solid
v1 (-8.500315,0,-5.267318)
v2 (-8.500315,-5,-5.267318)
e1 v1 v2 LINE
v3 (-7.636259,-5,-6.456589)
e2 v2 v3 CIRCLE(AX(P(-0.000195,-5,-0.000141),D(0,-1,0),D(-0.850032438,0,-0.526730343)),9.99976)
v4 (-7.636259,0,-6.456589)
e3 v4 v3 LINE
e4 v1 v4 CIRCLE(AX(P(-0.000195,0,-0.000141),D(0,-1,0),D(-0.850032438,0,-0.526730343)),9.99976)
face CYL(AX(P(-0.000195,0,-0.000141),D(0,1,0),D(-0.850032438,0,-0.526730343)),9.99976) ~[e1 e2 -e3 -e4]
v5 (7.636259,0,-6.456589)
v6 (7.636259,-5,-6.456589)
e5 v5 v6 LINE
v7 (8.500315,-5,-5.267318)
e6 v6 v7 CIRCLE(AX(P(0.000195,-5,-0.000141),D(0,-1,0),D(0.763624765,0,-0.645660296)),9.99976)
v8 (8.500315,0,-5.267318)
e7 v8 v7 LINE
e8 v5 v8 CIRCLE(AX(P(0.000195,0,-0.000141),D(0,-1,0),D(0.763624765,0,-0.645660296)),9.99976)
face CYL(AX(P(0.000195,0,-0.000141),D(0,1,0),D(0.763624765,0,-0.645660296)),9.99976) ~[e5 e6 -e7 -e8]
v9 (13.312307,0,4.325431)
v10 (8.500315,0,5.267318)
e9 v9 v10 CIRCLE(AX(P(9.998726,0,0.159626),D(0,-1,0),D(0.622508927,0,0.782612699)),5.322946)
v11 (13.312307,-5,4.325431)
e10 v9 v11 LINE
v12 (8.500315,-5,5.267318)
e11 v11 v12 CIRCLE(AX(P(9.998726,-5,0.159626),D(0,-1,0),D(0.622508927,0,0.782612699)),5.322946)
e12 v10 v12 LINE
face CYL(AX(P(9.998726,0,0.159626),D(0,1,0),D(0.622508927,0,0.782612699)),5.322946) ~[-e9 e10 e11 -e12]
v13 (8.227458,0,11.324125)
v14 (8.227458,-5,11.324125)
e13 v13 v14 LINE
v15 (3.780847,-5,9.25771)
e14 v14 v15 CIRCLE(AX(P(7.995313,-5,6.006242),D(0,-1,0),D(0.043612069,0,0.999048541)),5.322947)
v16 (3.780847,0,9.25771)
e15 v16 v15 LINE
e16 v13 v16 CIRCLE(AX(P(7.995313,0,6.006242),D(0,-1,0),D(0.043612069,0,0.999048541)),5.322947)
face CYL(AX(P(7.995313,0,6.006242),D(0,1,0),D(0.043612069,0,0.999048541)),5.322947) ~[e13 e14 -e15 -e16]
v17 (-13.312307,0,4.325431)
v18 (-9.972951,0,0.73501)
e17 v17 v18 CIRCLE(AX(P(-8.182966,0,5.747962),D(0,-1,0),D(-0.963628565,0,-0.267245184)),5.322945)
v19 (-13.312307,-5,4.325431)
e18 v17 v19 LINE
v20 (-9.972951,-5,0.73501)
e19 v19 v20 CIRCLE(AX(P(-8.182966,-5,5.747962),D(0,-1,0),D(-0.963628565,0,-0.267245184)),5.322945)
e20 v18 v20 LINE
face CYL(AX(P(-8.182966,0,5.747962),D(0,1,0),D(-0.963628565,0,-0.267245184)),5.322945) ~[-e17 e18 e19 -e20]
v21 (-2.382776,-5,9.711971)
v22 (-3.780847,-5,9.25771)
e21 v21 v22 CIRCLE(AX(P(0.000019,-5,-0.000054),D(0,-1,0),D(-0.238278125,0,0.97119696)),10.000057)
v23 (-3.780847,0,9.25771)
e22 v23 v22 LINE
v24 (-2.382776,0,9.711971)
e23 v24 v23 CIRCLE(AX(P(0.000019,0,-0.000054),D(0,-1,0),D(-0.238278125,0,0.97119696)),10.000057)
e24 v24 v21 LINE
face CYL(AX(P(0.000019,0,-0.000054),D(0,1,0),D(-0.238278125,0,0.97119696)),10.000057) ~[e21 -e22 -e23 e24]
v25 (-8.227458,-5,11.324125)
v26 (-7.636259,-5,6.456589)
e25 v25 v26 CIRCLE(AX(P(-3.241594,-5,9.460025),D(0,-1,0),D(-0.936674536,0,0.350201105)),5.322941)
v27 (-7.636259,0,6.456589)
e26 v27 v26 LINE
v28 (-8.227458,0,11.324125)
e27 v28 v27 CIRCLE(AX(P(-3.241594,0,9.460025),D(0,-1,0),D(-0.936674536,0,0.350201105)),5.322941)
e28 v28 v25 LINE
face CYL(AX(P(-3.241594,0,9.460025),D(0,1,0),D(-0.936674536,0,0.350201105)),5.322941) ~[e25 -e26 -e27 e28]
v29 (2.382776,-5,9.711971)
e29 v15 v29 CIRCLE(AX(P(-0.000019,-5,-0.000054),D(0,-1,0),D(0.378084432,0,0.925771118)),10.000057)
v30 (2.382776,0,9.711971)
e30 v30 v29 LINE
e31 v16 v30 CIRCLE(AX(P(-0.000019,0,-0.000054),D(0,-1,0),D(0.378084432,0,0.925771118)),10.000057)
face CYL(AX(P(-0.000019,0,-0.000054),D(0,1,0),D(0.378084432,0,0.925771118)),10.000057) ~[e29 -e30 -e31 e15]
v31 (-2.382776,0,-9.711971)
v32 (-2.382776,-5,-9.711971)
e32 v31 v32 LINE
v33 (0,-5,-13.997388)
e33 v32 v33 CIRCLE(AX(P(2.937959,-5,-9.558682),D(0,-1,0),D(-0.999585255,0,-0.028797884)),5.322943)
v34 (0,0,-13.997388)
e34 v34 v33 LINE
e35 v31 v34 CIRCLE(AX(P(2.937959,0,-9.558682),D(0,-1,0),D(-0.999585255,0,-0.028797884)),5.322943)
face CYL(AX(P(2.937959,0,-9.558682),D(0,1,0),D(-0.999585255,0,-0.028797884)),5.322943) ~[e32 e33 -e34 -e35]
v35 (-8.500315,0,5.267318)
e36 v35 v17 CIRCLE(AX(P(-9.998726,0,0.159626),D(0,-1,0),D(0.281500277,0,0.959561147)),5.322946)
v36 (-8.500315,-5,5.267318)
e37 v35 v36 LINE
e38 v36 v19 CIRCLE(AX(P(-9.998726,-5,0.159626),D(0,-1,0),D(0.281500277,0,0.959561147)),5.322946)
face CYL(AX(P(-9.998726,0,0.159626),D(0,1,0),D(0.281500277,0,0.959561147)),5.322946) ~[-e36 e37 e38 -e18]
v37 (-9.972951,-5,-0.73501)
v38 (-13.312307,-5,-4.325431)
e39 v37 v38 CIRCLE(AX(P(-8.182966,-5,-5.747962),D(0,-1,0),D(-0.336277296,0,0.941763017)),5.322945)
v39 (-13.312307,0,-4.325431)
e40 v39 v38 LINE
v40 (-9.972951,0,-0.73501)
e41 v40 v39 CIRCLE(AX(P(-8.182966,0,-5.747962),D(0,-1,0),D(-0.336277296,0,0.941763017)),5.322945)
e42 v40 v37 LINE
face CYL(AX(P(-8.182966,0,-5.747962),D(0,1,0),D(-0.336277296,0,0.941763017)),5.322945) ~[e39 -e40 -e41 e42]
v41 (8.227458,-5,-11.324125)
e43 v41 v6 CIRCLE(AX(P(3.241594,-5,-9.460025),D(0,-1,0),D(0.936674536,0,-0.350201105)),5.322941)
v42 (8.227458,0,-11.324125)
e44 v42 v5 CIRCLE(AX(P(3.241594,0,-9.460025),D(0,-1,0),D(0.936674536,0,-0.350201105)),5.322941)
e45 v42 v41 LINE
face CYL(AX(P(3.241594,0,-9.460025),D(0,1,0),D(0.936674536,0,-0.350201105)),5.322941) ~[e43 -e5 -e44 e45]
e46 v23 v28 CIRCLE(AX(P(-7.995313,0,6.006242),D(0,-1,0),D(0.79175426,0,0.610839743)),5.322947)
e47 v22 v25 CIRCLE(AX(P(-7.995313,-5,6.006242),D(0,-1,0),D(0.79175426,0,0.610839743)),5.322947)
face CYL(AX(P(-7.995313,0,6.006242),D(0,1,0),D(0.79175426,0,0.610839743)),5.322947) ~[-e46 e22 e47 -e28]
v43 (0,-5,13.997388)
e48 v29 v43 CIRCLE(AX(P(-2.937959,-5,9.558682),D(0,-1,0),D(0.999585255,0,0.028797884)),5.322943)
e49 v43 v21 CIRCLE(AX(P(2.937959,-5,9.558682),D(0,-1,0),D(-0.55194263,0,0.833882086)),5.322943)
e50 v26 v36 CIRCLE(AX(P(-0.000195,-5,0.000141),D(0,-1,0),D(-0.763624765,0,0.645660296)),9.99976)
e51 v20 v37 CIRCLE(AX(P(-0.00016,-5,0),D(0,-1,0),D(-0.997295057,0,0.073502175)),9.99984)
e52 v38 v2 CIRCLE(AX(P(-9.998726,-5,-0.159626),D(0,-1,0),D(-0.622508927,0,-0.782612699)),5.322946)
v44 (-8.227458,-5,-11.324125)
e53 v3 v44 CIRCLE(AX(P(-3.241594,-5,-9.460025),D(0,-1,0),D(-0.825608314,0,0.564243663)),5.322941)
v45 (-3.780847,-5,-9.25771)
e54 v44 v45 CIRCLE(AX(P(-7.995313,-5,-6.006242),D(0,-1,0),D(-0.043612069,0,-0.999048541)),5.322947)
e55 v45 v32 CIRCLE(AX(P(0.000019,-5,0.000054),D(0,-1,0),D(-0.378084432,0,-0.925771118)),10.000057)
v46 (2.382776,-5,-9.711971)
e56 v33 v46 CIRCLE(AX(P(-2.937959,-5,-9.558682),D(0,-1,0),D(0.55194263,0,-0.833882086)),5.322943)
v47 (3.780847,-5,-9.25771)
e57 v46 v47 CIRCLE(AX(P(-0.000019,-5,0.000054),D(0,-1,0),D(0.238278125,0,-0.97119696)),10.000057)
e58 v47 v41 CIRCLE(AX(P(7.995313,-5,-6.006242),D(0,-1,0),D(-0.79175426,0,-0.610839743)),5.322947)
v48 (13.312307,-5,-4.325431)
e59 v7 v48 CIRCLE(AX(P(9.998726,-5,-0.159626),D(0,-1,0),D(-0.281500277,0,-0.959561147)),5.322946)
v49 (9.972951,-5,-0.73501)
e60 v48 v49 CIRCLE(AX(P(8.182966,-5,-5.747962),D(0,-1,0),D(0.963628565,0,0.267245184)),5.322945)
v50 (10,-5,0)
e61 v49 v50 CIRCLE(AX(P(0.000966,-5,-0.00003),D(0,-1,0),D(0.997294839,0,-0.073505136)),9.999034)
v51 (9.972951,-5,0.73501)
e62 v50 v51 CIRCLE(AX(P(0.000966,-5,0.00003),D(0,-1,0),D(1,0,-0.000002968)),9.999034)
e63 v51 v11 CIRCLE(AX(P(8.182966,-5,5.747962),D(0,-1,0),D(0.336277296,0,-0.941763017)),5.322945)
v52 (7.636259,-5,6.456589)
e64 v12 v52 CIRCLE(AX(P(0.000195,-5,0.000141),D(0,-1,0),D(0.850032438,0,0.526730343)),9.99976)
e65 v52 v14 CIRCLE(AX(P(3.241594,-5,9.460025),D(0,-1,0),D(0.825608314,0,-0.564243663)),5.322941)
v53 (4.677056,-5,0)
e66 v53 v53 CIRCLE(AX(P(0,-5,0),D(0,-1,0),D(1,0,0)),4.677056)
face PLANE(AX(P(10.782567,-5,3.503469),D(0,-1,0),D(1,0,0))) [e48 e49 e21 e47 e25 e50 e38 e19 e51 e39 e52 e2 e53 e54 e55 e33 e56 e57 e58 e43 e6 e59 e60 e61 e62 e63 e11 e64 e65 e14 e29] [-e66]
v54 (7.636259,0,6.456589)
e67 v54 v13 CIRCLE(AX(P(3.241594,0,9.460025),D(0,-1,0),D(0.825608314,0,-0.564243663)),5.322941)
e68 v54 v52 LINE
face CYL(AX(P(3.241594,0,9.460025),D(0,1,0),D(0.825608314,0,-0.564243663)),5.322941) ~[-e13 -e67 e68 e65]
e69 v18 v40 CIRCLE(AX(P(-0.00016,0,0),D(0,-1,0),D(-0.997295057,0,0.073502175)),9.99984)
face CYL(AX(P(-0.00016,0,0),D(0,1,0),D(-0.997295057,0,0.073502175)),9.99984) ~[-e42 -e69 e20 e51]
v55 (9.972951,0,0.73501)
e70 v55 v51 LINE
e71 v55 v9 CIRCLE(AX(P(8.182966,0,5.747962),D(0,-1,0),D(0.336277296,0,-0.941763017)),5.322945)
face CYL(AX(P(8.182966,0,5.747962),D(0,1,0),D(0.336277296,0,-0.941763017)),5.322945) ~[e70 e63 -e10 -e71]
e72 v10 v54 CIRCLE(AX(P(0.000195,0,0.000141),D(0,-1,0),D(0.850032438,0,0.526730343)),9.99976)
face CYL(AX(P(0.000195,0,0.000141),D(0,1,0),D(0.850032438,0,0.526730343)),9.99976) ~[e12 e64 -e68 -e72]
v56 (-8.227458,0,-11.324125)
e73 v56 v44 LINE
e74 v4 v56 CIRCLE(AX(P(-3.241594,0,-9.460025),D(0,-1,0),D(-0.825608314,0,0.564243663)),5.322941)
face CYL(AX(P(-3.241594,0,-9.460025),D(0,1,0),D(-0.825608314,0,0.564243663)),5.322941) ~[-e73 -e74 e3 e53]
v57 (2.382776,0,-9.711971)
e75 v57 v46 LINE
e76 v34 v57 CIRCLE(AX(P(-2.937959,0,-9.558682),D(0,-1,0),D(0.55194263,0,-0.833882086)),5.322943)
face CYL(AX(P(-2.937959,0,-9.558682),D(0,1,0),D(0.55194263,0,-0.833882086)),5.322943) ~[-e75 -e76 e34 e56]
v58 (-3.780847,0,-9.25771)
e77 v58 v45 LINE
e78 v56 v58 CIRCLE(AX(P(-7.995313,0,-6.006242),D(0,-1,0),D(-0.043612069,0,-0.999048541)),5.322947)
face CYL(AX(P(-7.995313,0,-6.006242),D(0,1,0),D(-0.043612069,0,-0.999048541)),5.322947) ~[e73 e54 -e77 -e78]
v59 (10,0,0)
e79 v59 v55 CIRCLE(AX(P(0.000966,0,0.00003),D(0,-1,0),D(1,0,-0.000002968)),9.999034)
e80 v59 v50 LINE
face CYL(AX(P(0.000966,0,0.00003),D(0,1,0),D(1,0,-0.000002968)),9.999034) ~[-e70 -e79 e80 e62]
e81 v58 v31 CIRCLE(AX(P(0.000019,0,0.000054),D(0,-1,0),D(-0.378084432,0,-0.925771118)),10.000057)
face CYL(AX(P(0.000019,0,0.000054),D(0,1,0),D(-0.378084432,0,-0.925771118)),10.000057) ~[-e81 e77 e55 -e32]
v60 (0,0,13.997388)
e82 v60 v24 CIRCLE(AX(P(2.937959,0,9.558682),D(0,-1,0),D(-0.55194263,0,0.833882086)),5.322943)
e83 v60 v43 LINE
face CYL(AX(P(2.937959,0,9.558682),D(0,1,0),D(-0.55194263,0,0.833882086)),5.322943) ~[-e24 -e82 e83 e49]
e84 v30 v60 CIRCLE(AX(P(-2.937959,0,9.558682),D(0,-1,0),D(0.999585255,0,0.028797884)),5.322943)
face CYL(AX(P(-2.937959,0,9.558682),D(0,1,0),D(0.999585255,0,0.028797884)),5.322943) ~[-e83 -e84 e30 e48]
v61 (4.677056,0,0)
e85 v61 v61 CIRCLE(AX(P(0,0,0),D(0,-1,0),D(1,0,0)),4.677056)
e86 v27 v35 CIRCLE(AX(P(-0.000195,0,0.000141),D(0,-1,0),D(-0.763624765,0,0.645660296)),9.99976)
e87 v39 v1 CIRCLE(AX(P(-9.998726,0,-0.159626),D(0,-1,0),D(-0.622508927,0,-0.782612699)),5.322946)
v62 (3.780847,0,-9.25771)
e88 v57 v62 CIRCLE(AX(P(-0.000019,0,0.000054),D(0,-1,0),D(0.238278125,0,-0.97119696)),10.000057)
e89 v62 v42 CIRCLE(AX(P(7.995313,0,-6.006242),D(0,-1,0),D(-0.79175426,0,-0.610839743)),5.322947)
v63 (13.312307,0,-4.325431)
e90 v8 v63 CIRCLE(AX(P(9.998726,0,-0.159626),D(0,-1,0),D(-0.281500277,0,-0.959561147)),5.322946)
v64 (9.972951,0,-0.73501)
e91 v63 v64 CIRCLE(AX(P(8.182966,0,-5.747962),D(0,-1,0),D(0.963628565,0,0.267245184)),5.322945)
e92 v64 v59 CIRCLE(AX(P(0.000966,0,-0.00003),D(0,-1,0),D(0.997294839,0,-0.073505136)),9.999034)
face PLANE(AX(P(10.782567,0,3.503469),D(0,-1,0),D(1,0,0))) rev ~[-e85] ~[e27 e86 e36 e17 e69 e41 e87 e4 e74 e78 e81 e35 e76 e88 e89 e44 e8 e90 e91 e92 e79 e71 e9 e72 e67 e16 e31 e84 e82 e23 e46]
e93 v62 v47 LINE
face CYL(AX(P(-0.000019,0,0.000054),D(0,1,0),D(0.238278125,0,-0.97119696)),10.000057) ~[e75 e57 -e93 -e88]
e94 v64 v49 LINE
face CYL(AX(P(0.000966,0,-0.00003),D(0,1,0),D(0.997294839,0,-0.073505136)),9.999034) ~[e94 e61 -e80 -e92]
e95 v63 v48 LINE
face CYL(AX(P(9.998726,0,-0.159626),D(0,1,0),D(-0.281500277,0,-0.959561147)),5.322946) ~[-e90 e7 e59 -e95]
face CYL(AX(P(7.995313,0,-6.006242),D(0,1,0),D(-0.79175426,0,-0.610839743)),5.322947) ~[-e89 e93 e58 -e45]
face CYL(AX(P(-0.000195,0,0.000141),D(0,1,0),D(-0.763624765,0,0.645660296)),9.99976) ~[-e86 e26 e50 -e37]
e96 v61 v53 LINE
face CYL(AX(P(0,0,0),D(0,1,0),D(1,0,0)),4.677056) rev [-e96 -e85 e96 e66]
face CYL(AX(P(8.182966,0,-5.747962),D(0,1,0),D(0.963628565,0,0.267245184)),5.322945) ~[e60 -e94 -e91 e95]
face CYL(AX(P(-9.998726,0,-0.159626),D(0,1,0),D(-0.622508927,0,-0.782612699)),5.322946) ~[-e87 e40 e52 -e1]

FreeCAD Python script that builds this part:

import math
import FreeCAD as App
import Part
import Sketcher
from FreeCAD import Vector

doc = App.newDocument("Part")
params = doc.addObject("Spreadsheet::Sheet", "Params")
for row, (alias, value) in enumerate([
    ("pad1_length", "5 mm"),
], start=1):
    params.set(f"A{row}", alias)
    params.set(f"B{row}", "=" + value)
    params.setAlias(f"B{row}", alias)

body = doc.addObject("PartDesign::Body", "Body")

sketch1 = body.newObject("Sketcher::SketchObject", "Sketch")
sketch1.AttachmentSupport = (doc.getObject("XZ_Plane"), [""])
sketch1.MapMode = "FlatFace"
sketch1.addGeometry([
    Part.ArcOfCircle(Part.Circle(Vector(8.182966, 5.747962, 0), Vector(0, 0, 1), 5.322945), math.radians(-70.349772), math.radians(-15.500405)),
    Part.ArcOfCircle(Part.Circle(Vector(9.998726, 0.159626, 0), Vector(0, 0, 1), 5.322946), math.radians(51.500418), math.radians(106.349766)),
    Part.ArcOfCircle(Part.Circle(Vector(0.000195, 0.000141, 0), Vector(0, 0, 1), 9.99976), math.radians(31.784802), math.radians(40.2152)),
    Part.ArcOfCircle(Part.Circle(Vector(3.241594, 9.460025, 0), Vector(0, 0, 1), 5.322941), math.radians(-34.349786), math.radians(20.499616)),
    Part.ArcOfCircle(Part.Circle(Vector(7.995313, 6.006242, 0), Vector(0, 0, 1), 5.322947), math.radians(87.50042), math.radians(142.349753)),
    Part.ArcOfCircle(Part.Circle(Vector(-0.000019, -0.000054, 0), Vector(0, 0, 1), 10.000057), math.radians(67.784922), math.radians(76.215064)),
    Part.ArcOfCircle(Part.Circle(Vector(-2.937959, 9.558682, 0), Vector(0, 0, 1), 5.322943), math.radians(1.650225), math.radians(56.499612)),
    Part.ArcOfCircle(Part.Circle(Vector(2.937959, 9.558682, 0), Vector(0, 0, 1), 5.322943), math.radians(123.500388), math.radians(178.349775)),
    Part.ArcOfCircle(Part.Circle(Vector(0.000019, -0.000054, 0), Vector(0, 0, 1), 10.000057), math.radians(103.784936), math.radians(112.215078)),
    Part.ArcOfCircle(Part.Circle(Vector(-7.995313, 6.006242, 0), Vector(0, 0, 1), 5.322947), math.radians(37.650247), math.radians(92.49958)),
    Part.ArcOfCircle(Part.Circle(Vector(-3.241594, 9.460025, 0), Vector(0, 0, 1), 5.322941), math.radians(159.500384), math.radians(214.349786)),
    Part.ArcOfCircle(Part.Circle(Vector(-0.000195, 0.000141, 0), Vector(0, 0, 1), 9.99976), math.radians(139.7848), math.radians(148.215198)),
    Part.ArcOfCircle(Part.Circle(Vector(-9.998726, 0.159626, 0), Vector(0, 0, 1), 5.322946), math.radians(73.650234), math.radians(128.499582)),
    Part.ArcOfCircle(Part.Circle(Vector(-8.182966, 5.747962, 0), Vector(0, 0, 1), 5.322945), math.radians(-164.499595), math.radians(-109.650228)),
    Part.ArcOfCircle(Part.Circle(Vector(-0.00016, 0, 0), Vector(0, 0, 1), 9.99984), math.radians(175.784834), math.radians(184.215166)),
    Part.ArcOfCircle(Part.Circle(Vector(-8.182966, -5.747962, 0), Vector(0, 0, 1), 5.322945), math.radians(109.650228), math.radians(164.499595)),
    Part.ArcOfCircle(Part.Circle(Vector(-9.998726, -0.159626, 0), Vector(0, 0, 1), 5.322946), math.radians(-128.499582), math.radians(-73.650234)),
    Part.ArcOfCircle(Part.Circle(Vector(-0.000195, -0.000141, 0), Vector(0, 0, 1), 9.99976), math.radians(-148.215198), math.radians(-139.7848)),
    Part.ArcOfCircle(Part.Circle(Vector(-3.241594, -9.460025, 0), Vector(0, 0, 1), 5.322941), math.radians(145.650214), math.radians(200.499616)),
    Part.ArcOfCircle(Part.Circle(Vector(-7.995313, -6.006242, 0), Vector(0, 0, 1), 5.322947), math.radians(-92.49958), math.radians(-37.650247)),
    Part.ArcOfCircle(Part.Circle(Vector(0.000019, 0.000054, 0), Vector(0, 0, 1), 10.000057), math.radians(-112.215078), math.radians(-103.784936)),
    Part.ArcOfCircle(Part.Circle(Vector(2.937959, -9.558682, 0), Vector(0, 0, 1), 5.322943), math.radians(-178.349775), math.radians(-123.500388)),
    Part.ArcOfCircle(Part.Circle(Vector(-2.937959, -9.558682, 0), Vector(0, 0, 1), 5.322943), math.radians(-56.499612), math.radians(-1.650225)),
    Part.ArcOfCircle(Part.Circle(Vector(-0.000019, 0.000054, 0), Vector(0, 0, 1), 10.000057), math.radians(-76.215064), math.radians(-67.784922)),
    Part.ArcOfCircle(Part.Circle(Vector(7.995313, -6.006242, 0), Vector(0, 0, 1), 5.322947), math.radians(-142.349753), math.radians(-87.50042)),
    Part.ArcOfCircle(Part.Circle(Vector(3.241594, -9.460025, 0), Vector(0, 0, 1), 5.322941), math.radians(-20.499616), math.radians(34.349786)),
    Part.ArcOfCircle(Part.Circle(Vector(0.000195, -0.000141, 0), Vector(0, 0, 1), 9.99976), math.radians(-40.2152), math.radians(-31.784802)),
    Part.ArcOfCircle(Part.Circle(Vector(9.998726, -0.159626, 0), Vector(0, 0, 1), 5.322946), math.radians(-106.349766), math.radians(-51.500418)),
    Part.ArcOfCircle(Part.Circle(Vector(8.182966, -5.747962, 0), Vector(0, 0, 1), 5.322945), math.radians(15.500405), math.radians(70.349772)),
    Part.ArcOfCircle(Part.Circle(Vector(0.000966, -0.00003, 0), Vector(0, 0, 1), 9.999034), math.radians(-4.215336), math.radians(0.00017)),
    Part.ArcOfCircle(Part.Circle(Vector(0.000966, 0.00003, 0), Vector(0, 0, 1), 9.999034), math.radians(-0.00017), math.radians(4.215336)),
    Part.Circle(Vector(0, 0, 0), Vector(0, 0, 1), 4.677056),
], False)
sketch1.addConstraint([
    Sketcher.Constraint("Coincident", 0, 2, 1, 1),
    Sketcher.Constraint("Coincident", 1, 2, 2, 1),
    Sketcher.Constraint("Coincident", 2, 2, 3, 1),
    Sketcher.Constraint("Coincident", 3, 2, 4, 1),
    Sketcher.Constraint("Coincident", 4, 2, 5, 1),
    Sketcher.Constraint("Coincident", 5, 2, 6, 1),
    Sketcher.Constraint("Coincident", 6, 2, 7, 1),
    Sketcher.Constraint("Coincident", 7, 2, 8, 1),
    Sketcher.Constraint("Coincident", 8, 2, 9, 1),
    Sketcher.Constraint("Coincident", 9, 2, 10, 1),
    Sketcher.Constraint("Coincident", 10, 2, 11, 1),
    Sketcher.Constraint("Coincident", 11, 2, 12, 1),
    Sketcher.Constraint("Coincident", 12, 2, 13, 1),
    Sketcher.Constraint("Coincident", 13, 2, 14, 1),
    Sketcher.Constraint("Coincident", 14, 2, 15, 1),
    Sketcher.Constraint("Coincident", 15, 2, 16, 1),
    Sketcher.Constraint("Coincident", 16, 2, 17, 1),
    Sketcher.Constraint("Coincident", 17, 2, 18, 1),
    Sketcher.Constraint("Coincident", 18, 2, 19, 1),
    Sketcher.Constraint("Coincident", 19, 2, 20, 1),
    Sketcher.Constraint("Coincident", 20, 2, 21, 1),
    Sketcher.Constraint("Coincident", 21, 2, 22, 1),
    Sketcher.Constraint("Coincident", 22, 2, 23, 1),
    Sketcher.Constraint("Coincident", 23, 2, 24, 1),
    Sketcher.Constraint("Coincident", 24, 2, 25, 1),
    Sketcher.Constraint("Coincident", 25, 2, 26, 1),
    Sketcher.Constraint("Coincident", 26, 2, 27, 1),
    Sketcher.Constraint("Coincident", 27, 2, 28, 1),
    Sketcher.Constraint("Coincident", 28, 2, 29, 1),
    Sketcher.Constraint("Coincident", 29, 2, 30, 1),
    Sketcher.Constraint("Coincident", 30, 2, 0, 1),
    Sketcher.Constraint("Coincident", 31, 3, -1, 1),
    Sketcher.Constraint("Equal", 0, 1),
    Sketcher.Constraint("Equal", 1, 4),
    Sketcher.Constraint("Equal", 3, 6),
    Sketcher.Constraint("Equal", 6, 7),
    Sketcher.Constraint("Equal", 5, 8),
    Sketcher.Constraint("Equal", 4, 9),
    Sketcher.Constraint("Equal", 7, 10),
    Sketcher.Constraint("Equal", 2, 11),
    Sketcher.Constraint("Equal", 9, 12),
    Sketcher.Constraint("Equal", 12, 13),
    Sketcher.Constraint("Equal", 13, 15),
    Sketcher.Constraint("Equal", 15, 16),
    Sketcher.Constraint("Equal", 11, 17),
    Sketcher.Constraint("Equal", 10, 18),
    Sketcher.Constraint("Equal", 16, 19),
    Sketcher.Constraint("Equal", 8, 20),
    Sketcher.Constraint("Equal", 18, 21),
    Sketcher.Constraint("Equal", 21, 22),
    Sketcher.Constraint("Equal", 20, 23),
    Sketcher.Constraint("Equal", 19, 24),
    Sketcher.Constraint("Equal", 22, 25),
    Sketcher.Constraint("Equal", 17, 26),
    Sketcher.Constraint("Equal", 24, 27),
    Sketcher.Constraint("Equal", 27, 28),
    Sketcher.Constraint("Equal", 29, 30),
    Sketcher.Constraint("Symmetric", 0, 3, 15, 3, -1, 1),
    Sketcher.Constraint("Symmetric", 1, 3, 16, 3, -1, 1),
    Sketcher.Constraint("Symmetric", 2, 3, 17, 3, -1, 1),
    Sketcher.Constraint("Symmetric", 3, 3, 18, 3, -1, 1),
    Sketcher.Constraint("Symmetric", 4, 3, 19, 3, -1, 1),
    Sketcher.Constraint("Symmetric", 5, 3, 20, 3, -1, 1),
    Sketcher.Constraint("Symmetric", 6, 3, 21, 3, -1, 1),
    Sketcher.Constraint("Symmetric", 7, 3, 22, 3, -1, 1),
    Sketcher.Constraint("Symmetric", 8, 3, 23, 3, -1, 1),
    Sketcher.Constraint("Symmetric", 9, 3, 24, 3, -1, 1),
    Sketcher.Constraint("Symmetric", 10, 3, 25, 3, -1, 1),
    Sketcher.Constraint("Symmetric", 11, 3, 26, 3, -1, 1),
    Sketcher.Constraint("Symmetric", 12, 3, 27, 3, -1, 1),
    Sketcher.Constraint("Symmetric", 13, 3, 28, 3, -1, 1),
    Sketcher.Constraint("Symmetric", 6, 3, 7, 3, -2),
    Sketcher.Constraint("Symmetric", 5, 3, 8, 3, -2),
    Sketcher.Constraint("Symmetric", 4, 3, 9, 3, -2),
    Sketcher.Constraint("Symmetric", 3, 3, 10, 3, -2),
    Sketcher.Constraint("Symmetric", 2, 3, 11, 3, -2),
    Sketcher.Constraint("Symmetric", 1, 3, 12, 3, -2),
    Sketcher.Constraint("Symmetric", 0, 3, 13, 3, -2),
    Sketcher.Constraint("PointOnObject", 14, 3, -1),
    Sketcher.Constraint("PointOnObject", 29, 2, -1),
    Sketcher.Constraint("Horizontal", 14, 2, 28, 2),
    Sketcher.Constraint("Horizontal", 13, 2, 30, 2),
    Sketcher.Constraint("DistanceX", -1, 1, 29, 2, 10.0),
    Sketcher.Constraint("Radius", 2, 9.99976),
    Sketcher.Constraint("Radius", 3, 5.322941),
    Sketcher.Constraint("Radius", 14, 9.99984),
    Sketcher.Constraint("Diameter", 31, 9.354112),
    Sketcher.Constraint("Radius", 0, 5.322945),
    Sketcher.Constraint("Radius", 5, 10.000057),
    Sketcher.Constraint("Radius", 29, 9.999034),
    Sketcher.Constraint("DistanceY", -1, 1, 2, 3, 0.000141),
    Sketcher.Constraint("DistanceX", 6, 3, -1, 1, 2.937959),
    Sketcher.Constraint("DistanceY", -1, 1, 6, 3, 9.558682),
    Sketcher.Constraint("DistanceX", 14, 3, -1, 1, 0.00016),
    Sketcher.Constraint("DistanceY", -1, 1, 0, 2, 4.325431),
    Sketcher.Constraint("DistanceY", -1, 1, 1, 2, 5.267318),
    Sketcher.Constraint("DistanceX", -1, 1, 2, 2, 7.636259),
    Sketcher.Constraint("DistanceY", -1, 1, 2, 2, 6.456589),
    Sketcher.Constraint("DistanceX", -1, 1, 3, 2, 8.227458),
    Sketcher.Constraint("DistanceY", -1, 1, 4, 2, 9.25771),
    Sketcher.Constraint("DistanceY", -1, 1, 5, 2, 9.711971),
    Sketcher.Constraint("DistanceX", 13, 2, -1, 1, 9.972951),
    Sketcher.Constraint("DistanceX", -1, 1, 0, 3, 8.182966),
    Sketcher.Constraint("DistanceX", -1, 1, 3, 3, 3.241594),
    Sketcher.Constraint("DistanceX", -1, 1, 4, 3, 7.995313),
])
pad1 = body.newObject("PartDesign::Pad", "Pad")
pad1.Profile = sketch1
pad1.setExpression("Length", "Params.pad1_length")

doc.recompute()
